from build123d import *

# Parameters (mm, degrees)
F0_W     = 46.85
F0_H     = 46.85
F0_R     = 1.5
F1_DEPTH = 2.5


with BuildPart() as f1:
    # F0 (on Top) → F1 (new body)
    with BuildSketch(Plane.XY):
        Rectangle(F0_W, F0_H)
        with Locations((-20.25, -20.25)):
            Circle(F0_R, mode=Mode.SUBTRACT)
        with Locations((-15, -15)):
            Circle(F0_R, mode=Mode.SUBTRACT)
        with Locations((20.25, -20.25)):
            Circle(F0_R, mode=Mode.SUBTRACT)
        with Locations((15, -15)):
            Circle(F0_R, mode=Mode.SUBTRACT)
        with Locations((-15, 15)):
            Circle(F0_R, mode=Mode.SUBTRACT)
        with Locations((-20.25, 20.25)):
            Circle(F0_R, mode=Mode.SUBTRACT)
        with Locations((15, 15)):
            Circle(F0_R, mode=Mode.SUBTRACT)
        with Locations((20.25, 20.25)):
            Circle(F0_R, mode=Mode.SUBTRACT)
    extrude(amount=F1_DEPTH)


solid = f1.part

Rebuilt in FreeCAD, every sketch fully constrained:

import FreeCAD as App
import Part
import Sketcher
Q = App.Units.Quantity

doc = App.newDocument("Part")
body = doc.addObject("PartDesign::Body", "Body")

sketch1 = doc.addObject("Sketcher::SketchObject", "Sketch")
body.addObject(sketch1)
sketch1.AttachmentSupport = (doc.XY_Plane, [""])
sketch1.MapMode = "FlatFace"
sketch1.addGeometry(Part.LineSegment(App.Vector(-23.4, 23.4, 0), App.Vector(-23.4, -23.4, 0)), False)
sketch1.addGeometry(Part.LineSegment(App.Vector(-23.4, -23.4, 0), App.Vector(23.4, -23.4, 0)), False)
sketch1.addGeometry(Part.LineSegment(App.Vector(23.4, -23.4, 0), App.Vector(23.4, 23.4, 0)), False)
sketch1.addGeometry(Part.LineSegment(App.Vector(23.4, 23.4, 0), App.Vector(-23.4, 23.4, 0)), False)
sketch1.addGeometry(Part.Circle(App.Vector(-20.2, -20.2, 0), App.Vector(0, 0, 1), 1.5), False)
sketch1.addGeometry(Part.Circle(App.Vector(-15, -15, 0), App.Vector(0, 0, 1), 1.5), False)
sketch1.addGeometry(Part.Circle(App.Vector(20.2, -20.2, 0), App.Vector(0, 0, 1), 1.5), False)
sketch1.addGeometry(Part.Circle(App.Vector(15, -15, 0), App.Vector(0, 0, 1), 1.5), False)
sketch1.addGeometry(Part.Circle(App.Vector(-15, 15, 0), App.Vector(0, 0, 1), 1.5), False)
sketch1.addGeometry(Part.Circle(App.Vector(-20.2, 20.2, 0), App.Vector(0, 0, 1), 1.5), False)
sketch1.addGeometry(Part.Circle(App.Vector(15, 15, 0), App.Vector(0, 0, 1), 1.5), False)
sketch1.addGeometry(Part.Circle(App.Vector(20.2, 20.2, 0), App.Vector(0, 0, 1), 1.5), False)
sketch1.addConstraint(Sketcher.Constraint("Coincident", 0, 2, 1, 1))
sketch1.addConstraint(Sketcher.Constraint("Coincident", 1, 2, 2, 1))
sketch1.addConstraint(Sketcher.Constraint("Coincident", 2, 2, 3, 1))
sketch1.addConstraint(Sketcher.Constraint("Coincident", 3, 2, 0, 1))
sketch1.addConstraint(Sketcher.Constraint("Vertical", 0))
sketch1.addConstraint(Sketcher.Constraint("Horizontal", 1))
sketch1.addConstraint(Sketcher.Constraint("Vertical", 2))
sketch1.addConstraint(Sketcher.Constraint("Horizontal", 3))
sketch1.addConstraint(Sketcher.Constraint("Equal", 4, 5))
sketch1.addConstraint(Sketcher.Constraint("Equal", 5, 6))
sketch1.addConstraint(Sketcher.Constraint("Equal", 6, 7))
sketch1.addConstraint(Sketcher.Constraint("Equal", 7, 8))
sketch1.addConstraint(Sketcher.Constraint("Equal", 8, 9))
sketch1.addConstraint(Sketcher.Constraint("Equal", 9, 10))
sketch1.addConstraint(Sketcher.Constraint("Equal", 10, 11))
sketch1.addConstraint(Sketcher.Constraint("Symmetric", 7, 3, 8, 3, -1, 1))
sketch1.addConstraint(Sketcher.Constraint("Symmetric", 6, 3, 9, 3, -1, 1))
sketch1.addConstraint(Sketcher.Constraint("Symmetric", 5, 3, 10, 3, -1, 1))
sketch1.addConstraint(Sketcher.Constraint("Symmetric", 4, 3, 11, 3, -1, 1))
sketch1.addConstraint(Sketcher.Constraint("Symmetric", 0, 2, 2, 2, -1, 1))
sketch1.addConstraint(Sketcher.Constraint("Symmetric", 4, 3, 6, 3, -2))
sketch1.addConstraint(Sketcher.Constraint("Symmetric", 5, 3, 7, 3, -2))
sketch1.addConstraint(Sketcher.Constraint("Equal", 3, 0))
sketch1.addConstraint(Sketcher.Constraint("Diameter", 4, Q("3 mm")))
sketch1.addConstraint(Sketcher.Constraint("DistanceX", 5, 3, -1, 1, Q("15 mm")))
sketch1.addConstraint(Sketcher.Constraint("DistanceY", 5, 3, -1, 1, Q("15 mm")))
sketch1.addConstraint(Sketcher.Constraint("DistanceX", 1, 1, 1, 2, Q("46.85 mm")))
sketch1.addConstraint(Sketcher.Constraint("DistanceX", 4, 3, 6, 3, Q("40.5 mm")))
sketch1.addConstraint(Sketcher.Constraint("DistanceY", 4, 3, 9, 3, Q("40.5 mm")))
pad1 = doc.addObject("PartDesign::Pad", "Pad")
body.addObject(pad1)
pad1.Profile = sketch1
pad1.Length = 2.5

doc.recompute()
